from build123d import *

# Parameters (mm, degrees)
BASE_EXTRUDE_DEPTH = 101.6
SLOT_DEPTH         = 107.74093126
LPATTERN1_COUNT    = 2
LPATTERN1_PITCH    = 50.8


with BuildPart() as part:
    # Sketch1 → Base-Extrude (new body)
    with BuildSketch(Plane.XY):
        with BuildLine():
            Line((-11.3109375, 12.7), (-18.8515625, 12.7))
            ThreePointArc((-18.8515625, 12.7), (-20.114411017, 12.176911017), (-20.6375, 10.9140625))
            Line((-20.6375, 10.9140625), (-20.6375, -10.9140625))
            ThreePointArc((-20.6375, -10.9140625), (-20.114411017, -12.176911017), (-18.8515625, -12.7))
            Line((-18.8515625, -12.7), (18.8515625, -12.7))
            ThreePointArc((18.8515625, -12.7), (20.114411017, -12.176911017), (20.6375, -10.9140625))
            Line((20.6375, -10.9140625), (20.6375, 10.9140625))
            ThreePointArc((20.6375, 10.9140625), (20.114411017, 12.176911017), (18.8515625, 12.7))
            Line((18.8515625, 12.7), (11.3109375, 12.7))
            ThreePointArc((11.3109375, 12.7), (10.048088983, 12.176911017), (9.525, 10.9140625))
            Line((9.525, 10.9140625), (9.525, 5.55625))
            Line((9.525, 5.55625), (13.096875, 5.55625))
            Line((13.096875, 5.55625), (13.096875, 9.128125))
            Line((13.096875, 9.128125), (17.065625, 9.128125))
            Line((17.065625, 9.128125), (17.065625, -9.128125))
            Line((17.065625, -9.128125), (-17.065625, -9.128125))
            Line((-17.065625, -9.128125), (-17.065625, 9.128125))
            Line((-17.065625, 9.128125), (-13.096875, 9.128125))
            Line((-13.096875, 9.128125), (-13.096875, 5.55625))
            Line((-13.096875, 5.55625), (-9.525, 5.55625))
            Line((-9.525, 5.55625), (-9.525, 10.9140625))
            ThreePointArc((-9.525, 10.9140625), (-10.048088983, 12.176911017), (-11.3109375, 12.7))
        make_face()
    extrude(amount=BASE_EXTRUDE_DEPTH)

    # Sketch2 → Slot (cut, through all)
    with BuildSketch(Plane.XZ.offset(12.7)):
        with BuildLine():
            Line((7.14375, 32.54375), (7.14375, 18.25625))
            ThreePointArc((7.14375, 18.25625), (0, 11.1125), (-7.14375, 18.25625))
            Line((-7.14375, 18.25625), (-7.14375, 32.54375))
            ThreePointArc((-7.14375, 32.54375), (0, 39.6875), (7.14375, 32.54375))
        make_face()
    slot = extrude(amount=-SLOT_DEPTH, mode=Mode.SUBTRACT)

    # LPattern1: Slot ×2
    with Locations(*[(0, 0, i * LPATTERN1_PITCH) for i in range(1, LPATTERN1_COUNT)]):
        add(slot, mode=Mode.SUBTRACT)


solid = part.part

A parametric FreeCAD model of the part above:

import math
import FreeCAD as App
import Part
import Sketcher

V = App.Vector
Q = App.Units.Quantity

doc = App.newDocument("Part")
params = doc.addObject("Spreadsheet::Sheet", "Params")
for row, (alias, value) in enumerate([
    ("sketch1_width", "0.296875 in"),
    ("sketch1_width2", "1.484375 in"),
    ("sketch1_width3", "0.140625 in"),
    ("sketch1_width4", "0.15625 in"),
    ("sketch1_width5", "1.34375 in"),
    ("pad1_length", "4 in"),
    ("sketch2_radius", "0.28125 in"),
    ("sketch2_height", "0.5625 in"),
    ("linearpattern_pitch", "2 in"),
], start=1):
    params.set(f"A{row}", alias)
    params.set(f"B{row}", "=" + value)
    params.setAlias(f"B{row}", alias)

body = doc.addObject("PartDesign::Body", "Body")

sketch1 = body.newObject("Sketcher::SketchObject", "Sketch")
sketch1.AttachmentSupport = (doc.getObject("XY_Plane"), [""])
sketch1.MapMode = "FlatFace"
sketch1.addGeometry([
    Part.LineSegment(V(-11.310937, 12.7, 0), V(-18.851562, 12.7, 0)),
    Part.ArcOfCircle(Part.Circle(V(-18.851562, 10.914062, 0), V(0, 0, 1), 1.785937), math.radians(90), math.radians(180)),
    Part.LineSegment(V(-20.6375, 10.914062, 0), V(-20.6375, -10.914062, 0)),
    Part.ArcOfCircle(Part.Circle(V(-18.851562, -10.914062, 0), V(0, 0, 1), 1.785937), math.radians(180), math.radians(270)),
    Part.LineSegment(V(-18.851562, -12.7, 0), V(18.851562, -12.7, 0)),
    Part.ArcOfCircle(Part.Circle(V(18.851562, -10.914062, 0), V(0, 0, 1), 1.785937), math.radians(-90), math.radians(0)),
    Part.LineSegment(V(20.6375, -10.914062, 0), V(20.6375, 10.914062, 0)),
    Part.ArcOfCircle(Part.Circle(V(18.851562, 10.914062, 0), V(0, 0, 1), 1.785937), math.radians(0), math.radians(90)),
    Part.LineSegment(V(18.851562, 12.7, 0), V(11.310937, 12.7, 0)),
    Part.ArcOfCircle(Part.Circle(V(11.310937, 10.914062, 0), V(0, 0, 1), 1.785937), math.radians(90), math.radians(180)),
    Part.LineSegment(V(9.525, 10.914062, 0), V(9.525, 5.55625, 0)),
    Part.LineSegment(V(9.525, 5.55625, 0), V(13.096875, 5.55625, 0)),
    Part.LineSegment(V(13.096875, 5.55625, 0), V(13.096875, 9.128125, 0)),
    Part.LineSegment(V(13.096875, 9.128125, 0), V(17.065625, 9.128125, 0)),
    Part.LineSegment(V(17.065625, 9.128125, 0), V(17.065625, -9.128125, 0)),
    Part.LineSegment(V(17.065625, -9.128125, 0), V(-17.065625, -9.128125, 0)),
    Part.LineSegment(V(-17.065625, -9.128125, 0), V(-17.065625, 9.128125, 0)),
    Part.LineSegment(V(-17.065625, 9.128125, 0), V(-13.096875, 9.128125, 0)),
    Part.LineSegment(V(-13.096875, 9.128125, 0), V(-13.096875, 5.55625, 0)),
    Part.LineSegment(V(-13.096875, 5.55625, 0), V(-9.525, 5.55625, 0)),
    Part.LineSegment(V(-9.525, 5.55625, 0), V(-9.525, 10.914062, 0)),
    Part.ArcOfCircle(Part.Circle(V(-11.310937, 10.914062, 0), V(0, 0, 1), 1.785937), math.radians(0), math.radians(90)),
], False)
sketch1.addConstraint([
    Sketcher.Constraint("Tangent", 0, 2, 1, 1),
    Sketcher.Constraint("Tangent", 1, 2, 2, 1),
    Sketcher.Constraint("Tangent", 2, 2, 3, 1),
    Sketcher.Constraint("Tangent", 3, 2, 4, 1),
    Sketcher.Constraint("Tangent", 4, 2, 5, 1),
    Sketcher.Constraint("Tangent", 5, 2, 6, 1),
    Sketcher.Constraint("Tangent", 6, 2, 7, 1),
    Sketcher.Constraint("Tangent", 7, 2, 8, 1),
    Sketcher.Constraint("Tangent", 8, 2, 9, 1),
    Sketcher.Constraint("Tangent", 9, 2, 10, 1),
    Sketcher.Constraint("Coincident", 10, 2, 11, 1),
    Sketcher.Constraint("Coincident", 11, 2, 12, 1),
    Sketcher.Constraint("Coincident", 12, 2, 13, 1),
    Sketcher.Constraint("Coincident", 13, 2, 14, 1),
    Sketcher.Constraint("Coincident", 14, 2, 15, 1),
    Sketcher.Constraint("Coincident", 15, 2, 16, 1),
    Sketcher.Constraint("Coincident", 16, 2, 17, 1),
    Sketcher.Constraint("Coincident", 17, 2, 18, 1),
    Sketcher.Constraint("Coincident", 18, 2, 19, 1),
    Sketcher.Constraint("Coincident", 19, 2, 20, 1),
    Sketcher.Constraint("Tangent", 20, 2, 21, 1),
    Sketcher.Constraint("Tangent", 21, 2, 0, 1),
    Sketcher.Constraint("Horizontal", 0),
    Sketcher.Constraint("Vertical", 2),
    Sketcher.Constraint("Horizontal", 4),
    Sketcher.Constraint("Vertical", 6),
    Sketcher.Constraint("Horizontal", 8),
    Sketcher.Constraint("Vertical", 10),
    Sketcher.Constraint("Horizontal", 11),
    Sketcher.Constraint("Vertical", 12),
    Sketcher.Constraint("Horizontal", 13),
    Sketcher.Constraint("Vertical", 14),
    Sketcher.Constraint("Horizontal", 15),
    Sketcher.Constraint("Vertical", 16),
    Sketcher.Constraint("Horizontal", 17),
    Sketcher.Constraint("Vertical", 18),
    Sketcher.Constraint("Horizontal", 19),
    Sketcher.Constraint("Vertical", 20),
    Sketcher.Constraint("Equal", 1, 3),
    Sketcher.Constraint("Equal", 3, 5),
    Sketcher.Constraint("Equal", 5, 7),
    Sketcher.Constraint("Equal", 7, 9),
    Sketcher.Constraint("Equal", 9, 21),
    Sketcher.Constraint("Symmetric", 1, 3, 5, 3, -1, 1),
    Sketcher.Constraint("Symmetric", 13, 2, 15, 2, -1, 1),
    Sketcher.Constraint("Symmetric", 9, 3, 21, 3, -2),
    Sketcher.Constraint("Symmetric", 12, 2, 17, 2, -2),
    Sketcher.Constraint("Horizontal", 11, 2, 18, 2),
    Sketcher.Constraint("Equal", 19, 12),
    Sketcher.Constraint("DistanceY", -1, 1, 0, 2, Q("0.5 in")),
    Sketcher.Constraint("DistanceX", 0, 2, 0, 1, Q("0.296875 in")),
    Sketcher.Constraint("DistanceX", 4, 1, 4, 2, Q("1.484375 in")),
    Sketcher.Constraint("DistanceX", 11, 1, 11, 2, Q("0.140625 in")),
    Sketcher.Constraint("DistanceX", 13, 1, 13, 2, Q("0.15625 in")),
    Sketcher.Constraint("DistanceX", 15, 2, 15, 1, Q("1.34375 in")),
    Sketcher.Constraint("DistanceY", 14, 2, 14, 1, Q("0.71875 in")),
])
sketch1.setExpression("Constraints[50]", "Params.sketch1_width")
sketch1.setExpression("Constraints[51]", "Params.sketch1_width2")
sketch1.setExpression("Constraints[52]", "Params.sketch1_width3")
sketch1.setExpression("Constraints[53]", "Params.sketch1_width4")
sketch1.setExpression("Constraints[54]", "Params.sketch1_width5")
pad1 = body.newObject("PartDesign::Pad", "Pad")
pad1.Profile = sketch1
pad1.setExpression("Length", "Params.pad1_length")

sketch2 = body.newObject("Sketcher::SketchObject", "Sketch001")
sketch2.AttachmentSupport = (doc.getObject("XZ_Plane"), [""])
sketch2.MapMode = "FlatFace"
sketch2.AttachmentOffset = App.Placement(V(0, 0, 0.5 * 25.4), App.Rotation())
sketch2.addGeometry([
    Part.LineSegment(V(7.14375, 18.25625, 0), V(7.14375, 32.54375, 0)),
    Part.ArcOfCircle(Part.Circle(V(0, 32.54375, 0), V(0, 0, 1), 7.14375), math.radians(0), math.radians(180)),
    Part.LineSegment(V(-7.14375, 32.54375, 0), V(-7.14375, 18.25625, 0)),
    Part.ArcOfCircle(Part.Circle(V(0, 18.25625, 0), V(0, 0, 1), 7.14375), math.radians(180), math.radians(360)),
], False)
sketch2.addConstraint([
    Sketcher.Constraint("Tangent", 0, 2, 1, 1),
    Sketcher.Constraint("Tangent", 1, 2, 2, 1),
    Sketcher.Constraint("Tangent", 2, 2, 3, 1),
    Sketcher.Constraint("Tangent", 3, 2, 0, 1),
    Sketcher.Constraint("Vertical", 0),
    Sketcher.Constraint("Vertical", 2),
    Sketcher.Constraint("PointOnObject", 1, 3, -2),
    Sketcher.Constraint("Radius", 1, Q("0.28125 in")),
    Sketcher.Constraint("DistanceY", 0, 1, 0, 2, Q("0.5625 in")),
    Sketcher.Constraint("DistanceY", -1, 1, 1, 3, Q("1.28125 in")),
])
sketch2.setExpression("Constraints[7]", "Params.sketch2_radius")
sketch2.setExpression("Constraints[8]", "Params.sketch2_height")
pocket1 = body.newObject("PartDesign::Pocket", "Pocket")
pocket1.Profile = sketch2
pocket1.Type = "ThroughAll"
doc.recompute()

linearpattern = body.newObject("PartDesign::LinearPattern", "LinearPattern")
linearpattern.Originals = [pocket1]
linearpattern.Direction = (doc.getObject("Z_Axis"), [""])
linearpattern.Mode = "offset"
linearpattern.setExpression("Offset", "Params.linearpattern_pitch")
linearpattern.Occurrences = 2
body.Tip = linearpattern

doc.recompute()
